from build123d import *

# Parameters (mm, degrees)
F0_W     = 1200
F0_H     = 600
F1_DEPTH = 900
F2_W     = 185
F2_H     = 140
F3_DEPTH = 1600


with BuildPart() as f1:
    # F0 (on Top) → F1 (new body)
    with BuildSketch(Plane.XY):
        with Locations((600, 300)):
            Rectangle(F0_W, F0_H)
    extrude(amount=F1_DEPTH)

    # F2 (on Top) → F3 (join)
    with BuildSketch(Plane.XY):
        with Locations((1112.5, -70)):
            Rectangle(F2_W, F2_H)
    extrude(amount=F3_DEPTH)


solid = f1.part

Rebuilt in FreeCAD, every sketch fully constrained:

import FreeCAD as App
import Part
import Sketcher

V = App.Vector
Q = App.Units.Quantity

doc = App.newDocument("Part")
body = doc.addObject("PartDesign::Body", "Body")

sketch1 = body.newObject("Sketcher::SketchObject", "Sketch")
sketch1.AttachmentSupport = (doc.getObject("XY_Plane"), [""])
sketch1.MapMode = "FlatFace"
sketch1.addGeometry([
    Part.LineSegment(V(0, 600, 0), V(0, 0, 0)),
    Part.LineSegment(V(0, 0, 0), V(1200, 0, 0)),
    Part.LineSegment(V(1200, 0, 0), V(1200, 600, 0)),
    Part.LineSegment(V(1200, 600, 0), V(0, 600, 0)),
], False)
sketch1.addConstraint([
    Sketcher.Constraint("Coincident", 0, 2, 1, 1),
    Sketcher.Constraint("Coincident", 1, 2, 2, 1),
    Sketcher.Constraint("Coincident", 2, 2, 3, 1),
    Sketcher.Constraint("Coincident", 3, 2, 0, 1),
    Sketcher.Constraint("Vertical", 0),
    Sketcher.Constraint("Horizontal", 1),
    Sketcher.Constraint("Vertical", 2),
    Sketcher.Constraint("Horizontal", 3),
    Sketcher.Constraint("Coincident", 0, 2, -1, 1),
    Sketcher.Constraint("DistanceX", 1, 1, 1, 2, Q("1200 mm")),
    Sketcher.Constraint("DistanceY", 0, 2, 0, 1, Q("600 mm")),
])
pad1 = body.newObject("PartDesign::Pad", "Pad")
pad1.Profile = sketch1
pad1.Length = 900

sketch2 = body.newObject("Sketcher::SketchObject", "Sketch001")
sketch2.AttachmentSupport = (doc.getObject("XY_Plane"), [""])
sketch2.MapMode = "FlatFace"
sketch2.addGeometry([
    Part.LineSegment(V(1020, 0, 0), V(1020, -140, 0)),
    Part.LineSegment(V(1020, -140, 0), V(1205, -140, 0)),
    Part.LineSegment(V(1205, -140, 0), V(1205, 0, 0)),
    Part.LineSegment(V(1205, 0, 0), V(1020, 0, 0)),
], False)
sketch2.addConstraint([
    Sketcher.Constraint("Coincident", 0, 2, 1, 1),
    Sketcher.Constraint("Coincident", 1, 2, 2, 1),
    Sketcher.Constraint("Coincident", 2, 2, 3, 1),
    Sketcher.Constraint("Coincident", 3, 2, 0, 1),
    Sketcher.Constraint("Vertical", 0),
    Sketcher.Constraint("Horizontal", 1),
    Sketcher.Constraint("Vertical", 2),
    Sketcher.Constraint("Horizontal", 3),
    Sketcher.Constraint("PointOnObject", 2, 2, -1),
    Sketcher.Constraint("DistanceX", 1, 1, 1, 2, Q("185 mm")),
    Sketcher.Constraint("DistanceY", 0, 2, 0, 1, Q("140 mm")),
    Sketcher.Constraint("DistanceX", -1, 1, 0, 2, Q("1020 mm")),
])
pad2 = body.newObject("PartDesign::Pad", "Pad001")
pad2.Profile = sketch2
pad2.Length = 1600

doc.recompute()
